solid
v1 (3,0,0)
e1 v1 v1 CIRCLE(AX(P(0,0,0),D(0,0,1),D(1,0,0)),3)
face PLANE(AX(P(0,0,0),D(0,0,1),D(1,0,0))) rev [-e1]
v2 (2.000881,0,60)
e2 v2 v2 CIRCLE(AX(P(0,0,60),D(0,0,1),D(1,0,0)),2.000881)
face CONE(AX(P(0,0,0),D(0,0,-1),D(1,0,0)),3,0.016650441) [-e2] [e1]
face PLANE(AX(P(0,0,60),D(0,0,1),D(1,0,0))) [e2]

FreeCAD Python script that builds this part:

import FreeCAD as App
import Part
import Sketcher

V = App.Vector
Q = App.Units.Quantity

doc = App.newDocument("Part")
body = doc.addObject("PartDesign::Body", "Body")

sketch1 = doc.addObject("Sketcher::SketchObject", "Sketch")
body.addObject(sketch1)
sketch1.AttachmentSupport = (doc.XY_Plane, [""])
sketch1.MapMode = "FlatFace"
sketch1.addGeometry(Part.Circle(V(0, 0, 0), V(0, 0, 1), 3), False)
sketch1.addConstraint(Sketcher.Constraint("Coincident", 0, 3, -1, 1))
sketch1.addConstraint(Sketcher.Constraint("Diameter", 0, Q("6 mm")))
pad1 = doc.addObject("PartDesign::Pad", "Pad")
body.addObject(pad1)
pad1.Profile = sketch1
pad1.Length = 60
pad1.TaperAngle = -0.954

doc.recompute()
